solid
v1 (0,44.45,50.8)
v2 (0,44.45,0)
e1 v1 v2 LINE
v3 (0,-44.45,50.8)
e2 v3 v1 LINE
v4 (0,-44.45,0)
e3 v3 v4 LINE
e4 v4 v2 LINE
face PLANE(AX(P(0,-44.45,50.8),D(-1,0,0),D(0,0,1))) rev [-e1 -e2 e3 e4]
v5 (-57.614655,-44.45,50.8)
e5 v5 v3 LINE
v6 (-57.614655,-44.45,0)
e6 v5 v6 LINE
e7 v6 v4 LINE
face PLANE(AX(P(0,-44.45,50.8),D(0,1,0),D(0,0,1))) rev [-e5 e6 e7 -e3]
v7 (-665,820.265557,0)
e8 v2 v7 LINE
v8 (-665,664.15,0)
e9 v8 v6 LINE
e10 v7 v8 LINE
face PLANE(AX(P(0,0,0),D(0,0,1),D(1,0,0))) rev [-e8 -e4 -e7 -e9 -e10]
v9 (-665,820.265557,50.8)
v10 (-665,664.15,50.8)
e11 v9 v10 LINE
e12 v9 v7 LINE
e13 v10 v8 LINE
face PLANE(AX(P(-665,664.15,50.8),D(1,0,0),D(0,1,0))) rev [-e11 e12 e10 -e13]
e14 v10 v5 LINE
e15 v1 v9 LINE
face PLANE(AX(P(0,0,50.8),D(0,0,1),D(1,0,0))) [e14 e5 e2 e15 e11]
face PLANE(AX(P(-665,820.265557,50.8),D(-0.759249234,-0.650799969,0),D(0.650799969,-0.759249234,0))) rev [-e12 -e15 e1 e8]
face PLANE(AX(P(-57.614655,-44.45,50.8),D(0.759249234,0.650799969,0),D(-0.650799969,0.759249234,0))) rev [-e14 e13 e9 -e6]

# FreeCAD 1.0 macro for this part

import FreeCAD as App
import Part
import Sketcher
Q = App.Units.Quantity

doc = App.newDocument("Part")
body = doc.addObject("PartDesign::Body", "Body")

sketch1 = body.newObject("Sketcher::SketchObject", "Sketch")
sketch1.AttachmentSupport = (doc.getObject("XY_Plane"), [""])
sketch1.MapMode = "FlatFace"
sketch1.addGeometry([
    Part.LineSegment(App.Vector(-665, 664, 0), App.Vector(-58, -44, 0)),
    Part.LineSegment(App.Vector(-58, -44, 0), App.Vector(0, -44, 0)),
    Part.LineSegment(App.Vector(0, -44, 0), App.Vector(0, 44, 0)),
    Part.LineSegment(App.Vector(0, 44, 0), App.Vector(-665, 820, 0)),
    Part.LineSegment(App.Vector(-665, 820, 0), App.Vector(-665, 664, 0)),
], False)
sketch1.addConstraint([
    Sketcher.Constraint("Coincident", 0, 2, 1, 1),
    Sketcher.Constraint("Coincident", 1, 2, 2, 1),
    Sketcher.Constraint("Coincident", 2, 2, 3, 1),
    Sketcher.Constraint("Coincident", 3, 2, 4, 1),
    Sketcher.Constraint("Coincident", 4, 2, 0, 1),
    Sketcher.Constraint("Horizontal", 1),
    Sketcher.Constraint("Vertical", 2),
    Sketcher.Constraint("Vertical", 4),
    Sketcher.Constraint("Symmetric", 1, 2, 2, 2, -1, 1),
    Sketcher.Constraint("Parallel", 0, 3),
    Sketcher.Constraint("DistanceY", 2, 1, 2, 2, Q("3.5 in")),
    Sketcher.Constraint("DistanceX", 3, 2, -1, 1, 665.0),
    Sketcher.Constraint("DistanceY", -1, 1, 4, 2, 664.15),
    Sketcher.Constraint("Distance", 0, 933.290371),
])
pad1 = body.newObject("PartDesign::Pad", "Pad")
pad1.Profile = sketch1
pad1.Length = Q("2 in")

doc.recompute()
